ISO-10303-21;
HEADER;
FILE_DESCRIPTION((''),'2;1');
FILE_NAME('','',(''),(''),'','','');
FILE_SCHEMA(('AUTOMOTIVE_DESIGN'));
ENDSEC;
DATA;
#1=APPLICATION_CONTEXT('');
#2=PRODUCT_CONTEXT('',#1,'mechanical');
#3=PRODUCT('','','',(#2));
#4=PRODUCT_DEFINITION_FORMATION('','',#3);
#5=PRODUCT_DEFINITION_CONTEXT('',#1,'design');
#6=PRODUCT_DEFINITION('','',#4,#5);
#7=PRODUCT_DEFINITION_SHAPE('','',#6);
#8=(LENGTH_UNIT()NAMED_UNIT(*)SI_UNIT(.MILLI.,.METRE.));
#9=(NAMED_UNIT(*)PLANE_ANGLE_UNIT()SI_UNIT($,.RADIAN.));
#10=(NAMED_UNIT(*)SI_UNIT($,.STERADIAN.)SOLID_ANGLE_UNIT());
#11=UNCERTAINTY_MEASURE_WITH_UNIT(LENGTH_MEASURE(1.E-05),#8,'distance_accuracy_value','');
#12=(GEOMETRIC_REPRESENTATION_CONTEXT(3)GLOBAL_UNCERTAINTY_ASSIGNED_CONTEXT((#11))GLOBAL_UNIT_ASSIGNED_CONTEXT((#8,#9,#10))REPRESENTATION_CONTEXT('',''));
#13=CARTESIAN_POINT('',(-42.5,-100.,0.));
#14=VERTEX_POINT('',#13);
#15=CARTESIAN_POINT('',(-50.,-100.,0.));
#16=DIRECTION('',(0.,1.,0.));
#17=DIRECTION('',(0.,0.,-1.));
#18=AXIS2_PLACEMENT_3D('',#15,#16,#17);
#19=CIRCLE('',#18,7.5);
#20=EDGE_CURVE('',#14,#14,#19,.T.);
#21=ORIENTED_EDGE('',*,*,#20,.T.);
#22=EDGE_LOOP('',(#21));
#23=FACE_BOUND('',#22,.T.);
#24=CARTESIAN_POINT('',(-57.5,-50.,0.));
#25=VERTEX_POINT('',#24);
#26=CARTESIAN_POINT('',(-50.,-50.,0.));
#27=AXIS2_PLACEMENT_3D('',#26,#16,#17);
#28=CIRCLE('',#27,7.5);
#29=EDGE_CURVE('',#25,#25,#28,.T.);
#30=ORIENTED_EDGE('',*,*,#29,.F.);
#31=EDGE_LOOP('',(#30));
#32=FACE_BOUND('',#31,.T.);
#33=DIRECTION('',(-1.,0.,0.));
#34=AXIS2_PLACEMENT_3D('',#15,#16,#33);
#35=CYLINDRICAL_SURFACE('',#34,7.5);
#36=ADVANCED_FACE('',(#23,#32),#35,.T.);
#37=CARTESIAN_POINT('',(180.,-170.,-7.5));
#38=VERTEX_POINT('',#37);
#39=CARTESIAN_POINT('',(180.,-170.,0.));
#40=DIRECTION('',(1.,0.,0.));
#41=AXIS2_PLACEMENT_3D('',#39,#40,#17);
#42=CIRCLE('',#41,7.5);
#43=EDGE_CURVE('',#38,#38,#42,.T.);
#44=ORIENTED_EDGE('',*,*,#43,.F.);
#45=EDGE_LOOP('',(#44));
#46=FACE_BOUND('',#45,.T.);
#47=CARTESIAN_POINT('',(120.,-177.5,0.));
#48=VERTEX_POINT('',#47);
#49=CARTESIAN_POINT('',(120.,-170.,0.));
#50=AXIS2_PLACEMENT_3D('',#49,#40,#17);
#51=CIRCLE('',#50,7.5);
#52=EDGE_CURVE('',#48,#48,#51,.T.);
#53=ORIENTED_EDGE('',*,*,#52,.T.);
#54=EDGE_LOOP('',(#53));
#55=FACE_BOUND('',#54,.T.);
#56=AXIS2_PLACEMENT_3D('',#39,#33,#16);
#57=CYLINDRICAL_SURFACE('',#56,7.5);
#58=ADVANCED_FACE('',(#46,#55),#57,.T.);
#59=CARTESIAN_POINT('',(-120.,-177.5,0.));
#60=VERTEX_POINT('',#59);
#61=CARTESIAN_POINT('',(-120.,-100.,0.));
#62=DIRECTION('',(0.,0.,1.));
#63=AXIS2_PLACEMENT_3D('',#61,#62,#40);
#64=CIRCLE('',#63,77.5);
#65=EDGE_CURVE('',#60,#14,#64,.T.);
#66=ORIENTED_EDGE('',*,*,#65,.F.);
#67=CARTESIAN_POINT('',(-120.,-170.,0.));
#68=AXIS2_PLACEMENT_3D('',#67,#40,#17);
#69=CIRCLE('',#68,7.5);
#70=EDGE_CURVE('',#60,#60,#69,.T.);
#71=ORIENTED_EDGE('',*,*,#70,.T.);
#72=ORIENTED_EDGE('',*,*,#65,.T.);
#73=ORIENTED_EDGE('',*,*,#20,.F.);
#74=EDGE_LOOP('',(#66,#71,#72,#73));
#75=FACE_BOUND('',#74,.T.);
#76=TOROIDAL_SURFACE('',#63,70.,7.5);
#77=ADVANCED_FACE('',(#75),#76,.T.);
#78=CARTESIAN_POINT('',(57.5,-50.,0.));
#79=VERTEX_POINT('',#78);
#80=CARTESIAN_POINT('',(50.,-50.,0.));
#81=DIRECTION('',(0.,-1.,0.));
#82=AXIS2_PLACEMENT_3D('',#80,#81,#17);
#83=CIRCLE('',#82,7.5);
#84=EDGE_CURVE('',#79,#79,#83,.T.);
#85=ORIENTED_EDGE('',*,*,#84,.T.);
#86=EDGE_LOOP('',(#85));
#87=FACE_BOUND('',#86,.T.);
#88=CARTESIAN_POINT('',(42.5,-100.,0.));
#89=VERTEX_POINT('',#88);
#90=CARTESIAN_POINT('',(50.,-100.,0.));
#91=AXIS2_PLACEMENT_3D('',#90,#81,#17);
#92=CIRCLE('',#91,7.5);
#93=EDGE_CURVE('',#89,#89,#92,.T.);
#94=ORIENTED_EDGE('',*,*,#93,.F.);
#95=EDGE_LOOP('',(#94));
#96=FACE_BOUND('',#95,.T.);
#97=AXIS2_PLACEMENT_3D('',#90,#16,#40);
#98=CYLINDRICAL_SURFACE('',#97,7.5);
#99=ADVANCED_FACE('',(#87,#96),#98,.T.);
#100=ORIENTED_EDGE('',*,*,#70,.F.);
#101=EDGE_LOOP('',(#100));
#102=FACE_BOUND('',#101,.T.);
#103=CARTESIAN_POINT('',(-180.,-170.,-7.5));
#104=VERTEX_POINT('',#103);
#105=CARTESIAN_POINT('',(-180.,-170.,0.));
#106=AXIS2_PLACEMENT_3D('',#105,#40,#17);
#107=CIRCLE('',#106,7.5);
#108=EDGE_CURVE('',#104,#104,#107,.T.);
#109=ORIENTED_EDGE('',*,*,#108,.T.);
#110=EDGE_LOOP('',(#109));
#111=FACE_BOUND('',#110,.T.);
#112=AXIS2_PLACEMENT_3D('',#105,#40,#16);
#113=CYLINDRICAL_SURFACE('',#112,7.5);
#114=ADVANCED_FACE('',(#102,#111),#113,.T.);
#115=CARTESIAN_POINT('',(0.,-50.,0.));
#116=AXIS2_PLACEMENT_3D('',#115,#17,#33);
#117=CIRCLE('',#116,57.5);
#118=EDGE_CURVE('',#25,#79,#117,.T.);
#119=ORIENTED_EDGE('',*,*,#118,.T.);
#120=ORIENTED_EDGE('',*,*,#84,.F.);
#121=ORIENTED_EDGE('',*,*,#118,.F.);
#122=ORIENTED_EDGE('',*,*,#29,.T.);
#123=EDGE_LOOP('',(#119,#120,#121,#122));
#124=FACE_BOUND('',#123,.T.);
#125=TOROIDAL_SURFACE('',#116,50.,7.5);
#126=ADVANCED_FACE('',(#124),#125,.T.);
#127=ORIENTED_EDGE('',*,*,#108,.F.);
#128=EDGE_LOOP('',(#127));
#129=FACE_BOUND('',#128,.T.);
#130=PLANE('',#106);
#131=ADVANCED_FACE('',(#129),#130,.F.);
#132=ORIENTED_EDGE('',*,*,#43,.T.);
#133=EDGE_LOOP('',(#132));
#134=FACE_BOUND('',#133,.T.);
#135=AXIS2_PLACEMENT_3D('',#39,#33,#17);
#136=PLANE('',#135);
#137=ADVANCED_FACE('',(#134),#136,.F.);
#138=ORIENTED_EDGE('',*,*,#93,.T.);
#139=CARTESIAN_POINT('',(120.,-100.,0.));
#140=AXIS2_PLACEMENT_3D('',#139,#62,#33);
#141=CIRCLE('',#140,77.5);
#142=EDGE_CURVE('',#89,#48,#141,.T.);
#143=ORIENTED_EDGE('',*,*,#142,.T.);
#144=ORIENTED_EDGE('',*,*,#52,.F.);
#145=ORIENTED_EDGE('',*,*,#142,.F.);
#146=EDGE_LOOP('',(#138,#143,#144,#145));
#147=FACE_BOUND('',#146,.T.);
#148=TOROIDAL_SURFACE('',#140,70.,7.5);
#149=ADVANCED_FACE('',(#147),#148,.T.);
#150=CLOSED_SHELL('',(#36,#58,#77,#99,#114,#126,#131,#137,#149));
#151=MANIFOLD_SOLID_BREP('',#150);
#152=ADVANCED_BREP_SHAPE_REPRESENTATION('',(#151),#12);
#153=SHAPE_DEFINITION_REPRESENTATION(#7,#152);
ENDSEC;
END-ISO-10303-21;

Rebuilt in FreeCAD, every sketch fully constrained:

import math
import FreeCAD as App
import Part
import Sketcher
Q = App.Units.Quantity

doc = App.newDocument("Part")
body = doc.addObject("PartDesign::Body", "Body")

sketch1 = body.newObject("Sketcher::SketchObject", "Sketch")
sketch1.AttachmentSupport = (doc.getObject("YZ_Plane"), [""])
sketch1.MapMode = "FlatFace"
sketch1.addGeometry(Part.Circle(App.Vector(0, 0, 0), App.Vector(0, 0, 1), 8), False)
sketch1.addConstraint([
    Sketcher.Constraint("Coincident", 0, 3, -1, 1),
    Sketcher.Constraint("Diameter", 0, Q("15 mm")),
])

sketch2 = body.newObject("Sketcher::SketchObject", "Sketch001")
sketch2.AttachmentSupport = (doc.getObject("XY_Plane"), [""])
sketch2.MapMode = "FlatFace"
sketch2.addGeometry([
    Part.LineSegment(App.Vector(-180, -170, 0), App.Vector(-120, -170, 0)),
    Part.ArcOfCircle(Part.Circle(App.Vector(-120, -100, 0), App.Vector(0, 0, 1), 70), math.radians(-90), math.radians(0)),
    Part.LineSegment(App.Vector(-50, -100, 0), App.Vector(-50, -50, 0)),
    Part.ArcOfCircle(Part.Circle(App.Vector(0, -50, 0), App.Vector(0, 0, 1), 50), math.radians(90), math.radians(180)),
], False)
sketch2.addConstraint([
    Sketcher.Constraint("Tangent", 0, 2, 1, 1),
    Sketcher.Constraint("Tangent", 1, 2, 2, 1),
    Sketcher.Constraint("Tangent", 2, 2, 3, 2),
    Sketcher.Constraint("Horizontal", 0),
    Sketcher.Constraint("Vertical", 2),
    Sketcher.Constraint("Coincident", 3, 1, -1, 1),
    Sketcher.Constraint("PointOnObject", 3, 3, -2),
    Sketcher.Constraint("Radius", 1, Q("70 mm")),
    Sketcher.Constraint("Radius", 3, Q("50 mm")),
    Sketcher.Constraint("DistanceX", 0, 1, 0, 2, Q("60 mm")),
    Sketcher.Constraint("DistanceY", 2, 1, 2, 2, Q("50 mm")),
])
doc.recompute()

additivepipe = body.newObject("PartDesign::AdditivePipe", "AdditivePipe")
additivepipe.Profile = sketch1
additivepipe.Spine = (sketch2, ["Edge1", "Edge2", "Edge3", "Edge4"])
doc.recompute()

mirrored = body.newObject("PartDesign::Mirrored", "Mirrored")
mirrored.Originals = [additivepipe]
mirrored.MirrorPlane = (doc.getObject("YZ_Plane"), [""])
body.Tip = mirrored

doc.recompute()
